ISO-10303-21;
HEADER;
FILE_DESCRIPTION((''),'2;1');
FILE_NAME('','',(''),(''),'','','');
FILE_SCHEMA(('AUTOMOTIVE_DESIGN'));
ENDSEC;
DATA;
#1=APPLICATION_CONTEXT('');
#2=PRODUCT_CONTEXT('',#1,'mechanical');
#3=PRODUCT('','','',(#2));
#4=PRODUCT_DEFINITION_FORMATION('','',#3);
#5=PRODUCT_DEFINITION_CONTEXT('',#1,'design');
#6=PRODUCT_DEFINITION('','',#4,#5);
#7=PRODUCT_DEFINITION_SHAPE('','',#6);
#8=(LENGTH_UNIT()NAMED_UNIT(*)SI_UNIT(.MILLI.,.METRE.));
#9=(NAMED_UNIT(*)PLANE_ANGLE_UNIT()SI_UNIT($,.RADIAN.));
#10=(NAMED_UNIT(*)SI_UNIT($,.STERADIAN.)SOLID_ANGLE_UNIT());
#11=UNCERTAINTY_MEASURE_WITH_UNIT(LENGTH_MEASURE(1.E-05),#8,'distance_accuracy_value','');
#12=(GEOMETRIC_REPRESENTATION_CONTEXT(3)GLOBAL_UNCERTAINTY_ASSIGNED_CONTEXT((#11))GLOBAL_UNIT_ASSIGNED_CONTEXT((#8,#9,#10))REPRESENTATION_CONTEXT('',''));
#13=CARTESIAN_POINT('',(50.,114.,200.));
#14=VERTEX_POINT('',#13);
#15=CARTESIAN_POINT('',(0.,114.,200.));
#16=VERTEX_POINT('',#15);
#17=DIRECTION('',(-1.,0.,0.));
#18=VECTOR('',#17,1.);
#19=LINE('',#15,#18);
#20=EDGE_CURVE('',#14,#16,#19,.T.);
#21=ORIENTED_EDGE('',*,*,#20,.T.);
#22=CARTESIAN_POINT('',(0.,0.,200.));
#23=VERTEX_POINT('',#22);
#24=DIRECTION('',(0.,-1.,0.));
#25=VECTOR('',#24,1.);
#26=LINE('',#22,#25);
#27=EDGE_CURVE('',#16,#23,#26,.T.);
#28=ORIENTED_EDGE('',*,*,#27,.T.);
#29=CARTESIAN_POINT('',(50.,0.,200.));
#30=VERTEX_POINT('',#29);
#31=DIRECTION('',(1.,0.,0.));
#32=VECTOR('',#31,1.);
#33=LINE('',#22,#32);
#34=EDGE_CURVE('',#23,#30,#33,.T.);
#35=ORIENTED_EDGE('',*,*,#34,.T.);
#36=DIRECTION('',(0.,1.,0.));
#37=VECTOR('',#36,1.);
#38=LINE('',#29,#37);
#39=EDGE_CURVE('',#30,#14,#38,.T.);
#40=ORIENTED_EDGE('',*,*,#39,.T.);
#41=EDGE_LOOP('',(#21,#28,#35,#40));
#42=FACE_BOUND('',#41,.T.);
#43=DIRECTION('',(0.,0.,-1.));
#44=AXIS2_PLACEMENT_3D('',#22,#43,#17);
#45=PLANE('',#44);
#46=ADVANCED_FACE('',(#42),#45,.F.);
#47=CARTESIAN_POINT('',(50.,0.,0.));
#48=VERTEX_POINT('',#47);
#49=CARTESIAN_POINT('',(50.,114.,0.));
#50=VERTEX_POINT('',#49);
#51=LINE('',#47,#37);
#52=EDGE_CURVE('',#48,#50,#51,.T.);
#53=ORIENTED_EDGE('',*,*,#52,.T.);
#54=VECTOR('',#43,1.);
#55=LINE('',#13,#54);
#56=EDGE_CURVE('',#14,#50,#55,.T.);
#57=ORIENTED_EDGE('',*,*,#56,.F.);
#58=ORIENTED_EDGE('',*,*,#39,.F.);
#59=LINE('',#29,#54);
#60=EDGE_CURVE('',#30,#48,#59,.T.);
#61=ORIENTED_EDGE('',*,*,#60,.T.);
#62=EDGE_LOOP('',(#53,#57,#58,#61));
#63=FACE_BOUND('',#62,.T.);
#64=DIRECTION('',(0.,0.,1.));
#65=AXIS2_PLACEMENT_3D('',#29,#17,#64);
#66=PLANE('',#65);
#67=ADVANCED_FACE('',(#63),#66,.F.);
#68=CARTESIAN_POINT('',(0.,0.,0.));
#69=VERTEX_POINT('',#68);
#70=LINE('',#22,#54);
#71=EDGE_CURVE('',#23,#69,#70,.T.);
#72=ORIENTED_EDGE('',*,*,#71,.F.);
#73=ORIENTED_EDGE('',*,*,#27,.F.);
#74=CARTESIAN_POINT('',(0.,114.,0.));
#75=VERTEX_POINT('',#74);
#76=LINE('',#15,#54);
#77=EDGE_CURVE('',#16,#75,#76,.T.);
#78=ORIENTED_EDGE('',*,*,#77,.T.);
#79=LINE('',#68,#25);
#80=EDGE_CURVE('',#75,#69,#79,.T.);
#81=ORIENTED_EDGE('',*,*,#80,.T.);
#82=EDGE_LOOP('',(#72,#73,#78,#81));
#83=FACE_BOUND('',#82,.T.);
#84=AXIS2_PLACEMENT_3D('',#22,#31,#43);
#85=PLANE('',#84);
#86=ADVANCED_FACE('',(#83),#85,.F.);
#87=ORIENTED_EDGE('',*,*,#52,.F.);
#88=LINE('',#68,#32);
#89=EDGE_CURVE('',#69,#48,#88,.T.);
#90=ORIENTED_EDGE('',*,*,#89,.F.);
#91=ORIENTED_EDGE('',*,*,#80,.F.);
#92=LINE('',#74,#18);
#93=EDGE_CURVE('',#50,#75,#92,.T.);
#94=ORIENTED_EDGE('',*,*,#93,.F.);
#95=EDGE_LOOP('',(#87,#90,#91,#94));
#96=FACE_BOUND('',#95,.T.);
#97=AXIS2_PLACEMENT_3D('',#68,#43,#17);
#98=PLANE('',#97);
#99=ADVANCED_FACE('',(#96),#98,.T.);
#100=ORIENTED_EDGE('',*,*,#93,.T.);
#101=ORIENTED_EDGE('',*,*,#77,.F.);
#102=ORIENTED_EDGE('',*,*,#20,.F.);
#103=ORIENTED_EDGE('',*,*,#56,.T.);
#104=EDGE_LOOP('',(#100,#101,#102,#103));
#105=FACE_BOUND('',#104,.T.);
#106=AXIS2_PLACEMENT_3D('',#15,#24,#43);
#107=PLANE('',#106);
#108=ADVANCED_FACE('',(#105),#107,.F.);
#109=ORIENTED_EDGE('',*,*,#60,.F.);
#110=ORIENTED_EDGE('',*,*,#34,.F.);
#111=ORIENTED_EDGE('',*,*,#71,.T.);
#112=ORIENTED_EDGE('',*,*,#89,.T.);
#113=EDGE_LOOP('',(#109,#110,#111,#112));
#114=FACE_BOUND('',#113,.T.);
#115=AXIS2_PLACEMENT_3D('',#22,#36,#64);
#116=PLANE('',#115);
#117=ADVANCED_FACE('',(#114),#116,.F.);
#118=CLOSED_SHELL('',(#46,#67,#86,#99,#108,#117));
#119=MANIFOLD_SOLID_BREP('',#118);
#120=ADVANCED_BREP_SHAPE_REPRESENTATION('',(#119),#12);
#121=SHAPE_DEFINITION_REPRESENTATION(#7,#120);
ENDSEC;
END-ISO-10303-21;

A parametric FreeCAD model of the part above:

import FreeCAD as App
import Part
import Sketcher
from FreeCAD import Vector

doc = App.newDocument("Part")
params = doc.addObject("Spreadsheet::Sheet", "Params")
for row, (alias, value) in enumerate([
    ("sketch1_width", "50 mm"),
    ("sketch1_height", "114 mm"),
    ("pad1_length", "200 mm"),
], start=1):
    params.set(f"A{row}", alias)
    params.set(f"B{row}", "=" + value)
    params.setAlias(f"B{row}", alias)

body = doc.addObject("PartDesign::Body", "Body")

sketch1 = doc.addObject("Sketcher::SketchObject", "Sketch")
body.addObject(sketch1)
sketch1.AttachmentSupport = (doc.XY_Plane, [""])
sketch1.MapMode = "FlatFace"
sketch1.addGeometry([
    Part.LineSegment(Vector(0, 114, 0), Vector(0, 0, 0)),
    Part.LineSegment(Vector(0, 0, 0), Vector(50, 0, 0)),
    Part.LineSegment(Vector(50, 0, 0), Vector(50, 114, 0)),
    Part.LineSegment(Vector(50, 114, 0), Vector(0, 114, 0)),
], False)
sketch1.addConstraint([
    Sketcher.Constraint("Coincident", 0, 2, 1, 1),
    Sketcher.Constraint("Coincident", 1, 2, 2, 1),
    Sketcher.Constraint("Coincident", 2, 2, 3, 1),
    Sketcher.Constraint("Coincident", 3, 2, 0, 1),
    Sketcher.Constraint("Vertical", 0),
    Sketcher.Constraint("Horizontal", 1),
    Sketcher.Constraint("Vertical", 2),
    Sketcher.Constraint("Horizontal", 3),
    Sketcher.Constraint("Coincident", 0, 2, -1, 1),
    Sketcher.Constraint("DistanceX", 1, 1, 1, 2, 50.0),
    Sketcher.Constraint("DistanceY", 0, 2, 0, 1, 114.0),
])
sketch1.setExpression("Constraints[9]", "Params.sketch1_width")
sketch1.setExpression("Constraints[10]", "Params.sketch1_height")
pad1 = doc.addObject("PartDesign::Pad", "Pad")
body.addObject(pad1)
pad1.Profile = sketch1
pad1.setExpression("Length", "Params.pad1_length")

doc.recompute()
